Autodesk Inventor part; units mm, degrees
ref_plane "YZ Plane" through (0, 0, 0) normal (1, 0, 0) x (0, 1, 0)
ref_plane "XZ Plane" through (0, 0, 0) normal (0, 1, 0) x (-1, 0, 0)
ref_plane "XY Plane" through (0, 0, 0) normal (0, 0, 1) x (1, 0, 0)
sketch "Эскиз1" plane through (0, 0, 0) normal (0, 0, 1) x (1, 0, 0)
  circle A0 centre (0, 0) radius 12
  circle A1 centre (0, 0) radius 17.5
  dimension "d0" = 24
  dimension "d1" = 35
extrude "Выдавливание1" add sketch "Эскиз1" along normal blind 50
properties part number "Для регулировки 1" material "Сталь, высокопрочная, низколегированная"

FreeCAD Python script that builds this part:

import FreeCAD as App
import Part
import Sketcher

V = App.Vector

doc = App.newDocument("Part")
body = doc.addObject("PartDesign::Body", "Body")

# Sketch on XY plane
sketch1 = doc.addObject("Sketcher::SketchObject", "Sketch")
body.addObject(sketch1)
sketch1.AttachmentSupport = (doc.XY_Plane, [""])
sketch1.MapMode = "FlatFace"
sketch1.addGeometry([
    Part.Circle(V(0, 0, 0), V(0, 0, 1), 17.5),
    Part.Circle(V(0, 0, 0), V(0, 0, 1), 12),
], False)
sketch1.addConstraint([
    Sketcher.Constraint("Coincident", 0, 3, -1, 1),
    Sketcher.Constraint("Coincident", 1, 3, -1, 1),
    Sketcher.Constraint("Diameter", 0, 35.0),
    Sketcher.Constraint("Diameter", 1, 24.0),
])
pad1 = doc.addObject("PartDesign::Pad", "Pad")
body.addObject(pad1)
pad1.Profile = sketch1
pad1.Length = 50

doc.recompute()
